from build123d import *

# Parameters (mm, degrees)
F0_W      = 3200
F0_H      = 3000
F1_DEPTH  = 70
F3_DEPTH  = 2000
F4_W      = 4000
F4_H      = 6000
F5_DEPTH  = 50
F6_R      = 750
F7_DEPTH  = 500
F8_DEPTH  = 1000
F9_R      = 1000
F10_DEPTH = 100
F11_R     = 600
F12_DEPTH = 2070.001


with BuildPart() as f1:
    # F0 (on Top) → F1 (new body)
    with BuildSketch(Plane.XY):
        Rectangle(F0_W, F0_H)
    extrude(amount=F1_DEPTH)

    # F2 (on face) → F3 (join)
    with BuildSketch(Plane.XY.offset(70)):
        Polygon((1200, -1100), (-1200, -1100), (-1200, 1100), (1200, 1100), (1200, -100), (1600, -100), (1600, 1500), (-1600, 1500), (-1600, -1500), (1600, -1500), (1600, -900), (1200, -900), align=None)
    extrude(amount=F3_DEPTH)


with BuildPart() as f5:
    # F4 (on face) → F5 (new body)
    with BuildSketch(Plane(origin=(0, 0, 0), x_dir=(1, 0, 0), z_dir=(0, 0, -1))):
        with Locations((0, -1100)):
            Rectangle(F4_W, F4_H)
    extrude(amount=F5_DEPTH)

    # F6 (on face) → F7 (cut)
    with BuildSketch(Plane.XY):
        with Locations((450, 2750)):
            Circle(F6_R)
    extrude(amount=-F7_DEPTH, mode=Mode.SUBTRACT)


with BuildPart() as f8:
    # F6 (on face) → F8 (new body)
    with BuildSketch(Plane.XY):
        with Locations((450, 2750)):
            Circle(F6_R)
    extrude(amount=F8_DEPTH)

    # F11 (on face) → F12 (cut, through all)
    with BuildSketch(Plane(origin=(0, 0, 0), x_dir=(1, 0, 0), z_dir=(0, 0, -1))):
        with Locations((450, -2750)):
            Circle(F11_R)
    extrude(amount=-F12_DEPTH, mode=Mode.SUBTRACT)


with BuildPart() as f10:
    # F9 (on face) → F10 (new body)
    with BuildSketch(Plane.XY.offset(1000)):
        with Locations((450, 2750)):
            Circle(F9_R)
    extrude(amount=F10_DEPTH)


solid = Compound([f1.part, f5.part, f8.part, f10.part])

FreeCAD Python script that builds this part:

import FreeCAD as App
import Part
import Sketcher
from FreeCAD import Vector


def add_polygon(sketch, points):
    """Adds a closed chain of lines whose ends are joined by coincident constraints."""
    first, n = sketch.GeometryCount, len(points)
    for a, b in zip(points, points[1:] + points[:1]):
        sketch.addGeometry(Part.LineSegment(App.Vector(*a, 0), App.Vector(*b, 0)), False)
    for i in range(n):
        sketch.addConstraint(Sketcher.Constraint("Coincident", first + i, 2, first + (i + 1) % n, 1))

doc = App.newDocument("Part")
body = doc.addObject("PartDesign::Body", "Body")

# Sketch on XY plane
sketch1 = body.newObject("Sketcher::SketchObject", "Sketch")
sketch1.AttachmentSupport = (doc.getObject("XY_Plane"), [""])
sketch1.MapMode = "FlatFace"
add_polygon(sketch1, [(-1600, 1500), (-1600, -1500), (1600, -1500), (1600, 1500)])  # lines 0-3
sketch1.addConstraint(Sketcher.Constraint("Vertical", 0))
sketch1.addConstraint(Sketcher.Constraint("Horizontal", 1))
sketch1.addConstraint(Sketcher.Constraint("Vertical", 2))
sketch1.addConstraint(Sketcher.Constraint("Horizontal", 3))
sketch1.addConstraint(Sketcher.Constraint("Symmetric", 0, 2, 2, 2, -1, 1))
sketch1.addConstraint(Sketcher.Constraint("DistanceX", 1, 1, 1, 2, 3200.0))
sketch1.addConstraint(Sketcher.Constraint("DistanceY", 0, 2, 0, 1, 3000.0))
pad1 = body.newObject("PartDesign::Pad", "Pad")
pad1.Profile = sketch1
pad1.Length = 70

# Sketch on XY plane
sketch2 = body.newObject("Sketcher::SketchObject", "Sketch001")
sketch2.AttachmentSupport = (doc.getObject("XY_Plane"), [""])
sketch2.MapMode = "FlatFace"
sketch2.AttachmentOffset = App.Placement(Vector(0, 0, 70), App.Rotation())
add_polygon(sketch2, [(1200, -1100), (-1200, -1100), (-1200, 1100), (1200, 1100), (1200, -100), (1600, -100), (1600, 1500), (-1600, 1500), (-1600, -1500), (1600, -1500), (1600, -900), (1200, -900)])  # lines 0-11
sketch2.addConstraint(Sketcher.Constraint("Horizontal", 0))
sketch2.addConstraint(Sketcher.Constraint("Vertical", 1))
sketch2.addConstraint(Sketcher.Constraint("Horizontal", 2))
sketch2.addConstraint(Sketcher.Constraint("Vertical", 3))
sketch2.addConstraint(Sketcher.Constraint("Horizontal", 4))
sketch2.addConstraint(Sketcher.Constraint("Vertical", 5))
sketch2.addConstraint(Sketcher.Constraint("Horizontal", 6))
sketch2.addConstraint(Sketcher.Constraint("Vertical", 7))
sketch2.addConstraint(Sketcher.Constraint("Horizontal", 8))
sketch2.addConstraint(Sketcher.Constraint("Vertical", 9))
sketch2.addConstraint(Sketcher.Constraint("Horizontal", 10))
sketch2.addConstraint(Sketcher.Constraint("Vertical", 11))
sketch2.addConstraint(Sketcher.Constraint("Symmetric", 0, 2, 2, 2, -1, 1))
sketch2.addConstraint(Sketcher.Constraint("Symmetric", 5, 2, 7, 2, -1, 1))
sketch2.addConstraint(Sketcher.Constraint("Vertical", 5, 2, 8, 2))
sketch2.addConstraint(Sketcher.Constraint("Vertical", 3, 2, 10, 2))
sketch2.addConstraint(Sketcher.Constraint("DistanceX", 0, 2, 0, 1, 2400.0))
sketch2.addConstraint(Sketcher.Constraint("DistanceX", 4, 1, 4, 2, 400.0))
sketch2.addConstraint(Sketcher.Constraint("DistanceY", 1, 1, 1, 2, 2200.0))
sketch2.addConstraint(Sketcher.Constraint("DistanceY", 3, 2, 3, 1, 1200.0))
sketch2.addConstraint(Sketcher.Constraint("DistanceY", 5, 1, 5, 2, 1600.0))
sketch2.addConstraint(Sketcher.Constraint("DistanceY", 9, 1, 9, 2, 600.0))
pad2 = body.newObject("PartDesign::Pad", "Pad001")
pad2.Profile = sketch2
pad2.Length = 2000
body2 = doc.addObject("PartDesign::Body", "Body001")

# Sketch on XY plane
sketch3 = body2.newObject("Sketcher::SketchObject", "Sketch002")
sketch3.AttachmentSupport = (doc.getObject("XY_Plane001"), [""])
sketch3.MapMode = "FlatFace"
add_polygon(sketch3, [(-2000, -1900), (-2000, 4100), (2000, 4100), (2000, -1900)])  # lines 0-3
sketch3.addConstraint(Sketcher.Constraint("Vertical", 0))
sketch3.addConstraint(Sketcher.Constraint("Horizontal", 1))
sketch3.addConstraint(Sketcher.Constraint("Vertical", 2))
sketch3.addConstraint(Sketcher.Constraint("Horizontal", 3))
sketch3.addConstraint(Sketcher.Constraint("DistanceX", 1, 1, 1, 2, 4000.0))
sketch3.addConstraint(Sketcher.Constraint("DistanceY", 0, 1, 0, 2, 6000.0))
sketch3.addConstraint(Sketcher.Constraint("DistanceX", 0, 2, -1, 1, 2000.0))
sketch3.addConstraint(Sketcher.Constraint("DistanceY", -1, 1, 0, 2, 4100.0))
pad3 = body2.newObject("PartDesign::Pad", "Pad002")
pad3.Profile = sketch3
pad3.Length = 50
pad3.Reversed = True

# Sketch on XY plane
sketch4 = body2.newObject("Sketcher::SketchObject", "Sketch003")
sketch4.AttachmentSupport = (doc.getObject("XY_Plane001"), [""])
sketch4.MapMode = "FlatFace"
sketch4.addGeometry(Part.Circle(Vector(450, 2750, 0), Vector(0, 0, 1), 750), False)
sketch4.addConstraint(Sketcher.Constraint("Diameter", 0, 1500.0))
sketch4.addConstraint(Sketcher.Constraint("DistanceX", -1, 1, 0, 3, 450.0))
sketch4.addConstraint(Sketcher.Constraint("DistanceY", -1, 1, 0, 3, 2750.0))
pocket1 = body2.newObject("PartDesign::Pocket", "Pocket")
pocket1.Profile = sketch4
pocket1.Length = 500
body3 = doc.addObject("PartDesign::Body", "Body002")

# Sketch on XY plane
sketch5 = body3.newObject("Sketcher::SketchObject", "Sketch004")
sketch5.AttachmentSupport = (doc.getObject("XY_Plane002"), [""])
sketch5.MapMode = "FlatFace"
sketch5.addGeometry(Part.Circle(Vector(450, 2750, 0), Vector(0, 0, 1), 750), False)
sketch5.addConstraint(Sketcher.Constraint("Diameter", 0, 1500.0))
sketch5.addConstraint(Sketcher.Constraint("DistanceX", -1, 1, 0, 3, 450.0))
sketch5.addConstraint(Sketcher.Constraint("DistanceY", -1, 1, 0, 3, 2750.0))
pad4 = body3.newObject("PartDesign::Pad", "Pad003")
pad4.Profile = sketch5
pad4.Length = 1000

# Sketch on XY plane
sketch6 = body3.newObject("Sketcher::SketchObject", "Sketch005")
sketch6.AttachmentSupport = (doc.getObject("XY_Plane002"), [""])
sketch6.MapMode = "FlatFace"
sketch6.addGeometry(Part.Circle(Vector(450, 2750, 0), Vector(0, 0, 1), 600), False)
sketch6.addConstraint(Sketcher.Constraint("Diameter", 0, 1200.0))
sketch6.addConstraint(Sketcher.Constraint("DistanceX", -1, 1, 0, 3, 450.0))
sketch6.addConstraint(Sketcher.Constraint("DistanceY", -1, 1, 0, 3, 2750.0))
pocket2 = body3.newObject("PartDesign::Pocket", "Pocket001")
pocket2.Profile = sketch6
pocket2.Type = "ThroughAll"
pocket2.Reversed = True
body4 = doc.addObject("PartDesign::Body", "Body003")

# Sketch on XY plane
sketch7 = body4.newObject("Sketcher::SketchObject", "Sketch006")
sketch7.AttachmentSupport = (doc.getObject("XY_Plane003"), [""])
sketch7.MapMode = "FlatFace"
sketch7.AttachmentOffset = App.Placement(Vector(0, 0, 1000), App.Rotation())
sketch7.addGeometry(Part.Circle(Vector(450, 2750, 0), Vector(0, 0, 1), 1000), False)
sketch7.addConstraint(Sketcher.Constraint("Diameter", 0, 2000.0))
sketch7.addConstraint(Sketcher.Constraint("DistanceX", -1, 1, 0, 3, 450.0))
sketch7.addConstraint(Sketcher.Constraint("DistanceY", -1, 1, 0, 3, 2750.0))
pad5 = body4.newObject("PartDesign::Pad", "Pad004")
pad5.Profile = sketch7
pad5.Length = 100

doc.recompute()
